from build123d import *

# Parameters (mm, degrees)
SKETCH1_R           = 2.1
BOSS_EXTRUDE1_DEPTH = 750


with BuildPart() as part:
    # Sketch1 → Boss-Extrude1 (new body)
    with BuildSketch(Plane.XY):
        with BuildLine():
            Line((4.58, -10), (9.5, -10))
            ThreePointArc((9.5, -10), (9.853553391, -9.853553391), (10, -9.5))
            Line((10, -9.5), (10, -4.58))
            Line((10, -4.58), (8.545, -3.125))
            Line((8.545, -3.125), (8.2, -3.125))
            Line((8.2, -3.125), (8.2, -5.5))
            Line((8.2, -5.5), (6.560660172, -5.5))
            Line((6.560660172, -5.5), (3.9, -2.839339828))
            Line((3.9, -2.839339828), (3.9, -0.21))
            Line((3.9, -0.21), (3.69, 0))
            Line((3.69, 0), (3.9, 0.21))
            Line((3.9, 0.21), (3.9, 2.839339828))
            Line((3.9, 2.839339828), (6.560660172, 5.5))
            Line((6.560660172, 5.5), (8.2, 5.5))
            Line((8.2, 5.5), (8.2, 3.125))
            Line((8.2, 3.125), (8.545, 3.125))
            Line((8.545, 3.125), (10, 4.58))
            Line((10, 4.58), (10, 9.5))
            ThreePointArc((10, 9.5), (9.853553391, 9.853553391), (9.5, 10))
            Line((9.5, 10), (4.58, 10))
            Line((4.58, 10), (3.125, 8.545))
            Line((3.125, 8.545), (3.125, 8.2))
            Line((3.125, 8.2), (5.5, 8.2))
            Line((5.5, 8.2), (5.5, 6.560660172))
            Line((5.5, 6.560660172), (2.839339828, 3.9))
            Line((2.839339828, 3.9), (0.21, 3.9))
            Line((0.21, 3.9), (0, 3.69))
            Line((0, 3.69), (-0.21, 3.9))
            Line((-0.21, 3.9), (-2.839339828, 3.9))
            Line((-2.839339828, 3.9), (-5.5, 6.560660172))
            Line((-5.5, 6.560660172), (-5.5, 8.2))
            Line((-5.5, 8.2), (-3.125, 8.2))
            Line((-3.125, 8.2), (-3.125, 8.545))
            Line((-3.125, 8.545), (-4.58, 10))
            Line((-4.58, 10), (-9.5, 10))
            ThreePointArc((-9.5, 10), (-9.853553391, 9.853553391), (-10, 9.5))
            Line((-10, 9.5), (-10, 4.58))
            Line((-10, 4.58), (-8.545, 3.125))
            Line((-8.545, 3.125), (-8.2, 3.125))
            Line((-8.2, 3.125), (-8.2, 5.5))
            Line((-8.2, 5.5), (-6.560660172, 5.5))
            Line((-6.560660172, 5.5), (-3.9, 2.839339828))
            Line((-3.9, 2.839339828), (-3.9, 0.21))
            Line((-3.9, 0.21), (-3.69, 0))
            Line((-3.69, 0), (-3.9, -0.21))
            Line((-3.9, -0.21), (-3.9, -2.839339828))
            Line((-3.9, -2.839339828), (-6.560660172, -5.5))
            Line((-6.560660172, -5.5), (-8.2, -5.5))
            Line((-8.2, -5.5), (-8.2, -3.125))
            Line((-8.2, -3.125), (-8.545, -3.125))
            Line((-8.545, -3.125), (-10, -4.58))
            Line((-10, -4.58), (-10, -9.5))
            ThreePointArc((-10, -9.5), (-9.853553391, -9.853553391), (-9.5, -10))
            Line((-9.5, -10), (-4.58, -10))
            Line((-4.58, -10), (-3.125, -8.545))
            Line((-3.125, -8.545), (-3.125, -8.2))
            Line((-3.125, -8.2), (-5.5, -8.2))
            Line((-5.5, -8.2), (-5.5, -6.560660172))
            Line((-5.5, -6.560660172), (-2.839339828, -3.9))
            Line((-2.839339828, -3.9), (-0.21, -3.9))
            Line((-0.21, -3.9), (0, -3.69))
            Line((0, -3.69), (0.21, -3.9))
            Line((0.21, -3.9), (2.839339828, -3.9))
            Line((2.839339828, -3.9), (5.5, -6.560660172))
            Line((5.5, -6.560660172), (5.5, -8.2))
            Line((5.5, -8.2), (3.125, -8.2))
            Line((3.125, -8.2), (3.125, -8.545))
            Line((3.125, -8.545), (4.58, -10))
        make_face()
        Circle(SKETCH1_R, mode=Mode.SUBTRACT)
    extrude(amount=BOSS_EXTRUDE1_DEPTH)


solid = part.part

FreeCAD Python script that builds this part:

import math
import FreeCAD as App
import Part
import Sketcher

doc = App.newDocument("Part")
body = doc.addObject("PartDesign::Body", "Body")

# Sketch on XY plane
sketch1 = doc.addObject("Sketcher::SketchObject", "Sketch")
body.addObject(sketch1)
sketch1.AttachmentSupport = (doc.XY_Plane, [""])
sketch1.MapMode = "FlatFace"
sketch1.addGeometry([
    Part.LineSegment(App.Vector(4.58, -10, 0), App.Vector(9.5, -10, 0)),  # 0
    Part.ArcOfCircle(Part.Circle(App.Vector(9.5, -9.5, 0), App.Vector(0, 0, 1), 0.5), math.radians(-90), math.radians(0)),  # 1
    Part.LineSegment(App.Vector(10, -9.5, 0), App.Vector(10, -4.58, 0)),  # 2
    Part.LineSegment(App.Vector(10, -4.58, 0), App.Vector(8.545, -3.125, 0)),  # 3
    Part.LineSegment(App.Vector(8.545, -3.125, 0), App.Vector(8.2, -3.125, 0)),  # 4
    Part.LineSegment(App.Vector(8.2, -3.125, 0), App.Vector(8.2, -5.5, 0)),  # 5
    Part.LineSegment(App.Vector(8.2, -5.5, 0), App.Vector(6.56066, -5.5, 0)),  # 6
    Part.LineSegment(App.Vector(6.56066, -5.5, 0), App.Vector(3.9, -2.83934, 0)),  # 7
    Part.LineSegment(App.Vector(3.9, -2.83934, 0), App.Vector(3.9, -0.21, 0)),  # 8
    Part.LineSegment(App.Vector(3.9, -0.21, 0), App.Vector(3.69, 0, 0)),  # 9
    Part.LineSegment(App.Vector(3.69, 0, 0), App.Vector(3.9, 0.21, 0)),  # 10
    Part.LineSegment(App.Vector(3.9, 0.21, 0), App.Vector(3.9, 2.83934, 0)),  # 11
    Part.LineSegment(App.Vector(3.9, 2.83934, 0), App.Vector(6.56066, 5.5, 0)),  # 12
    Part.LineSegment(App.Vector(6.56066, 5.5, 0), App.Vector(8.2, 5.5, 0)),  # 13
    Part.LineSegment(App.Vector(8.2, 5.5, 0), App.Vector(8.2, 3.125, 0)),  # 14
    Part.LineSegment(App.Vector(8.2, 3.125, 0), App.Vector(8.545, 3.125, 0)),  # 15
    Part.LineSegment(App.Vector(8.545, 3.125, 0), App.Vector(10, 4.58, 0)),  # 16
    Part.LineSegment(App.Vector(10, 4.58, 0), App.Vector(10, 9.5, 0)),  # 17
    Part.ArcOfCircle(Part.Circle(App.Vector(9.5, 9.5, 0), App.Vector(0, 0, 1), 0.5), math.radians(0), math.radians(90)),  # 18
    Part.LineSegment(App.Vector(9.5, 10, 0), App.Vector(4.58, 10, 0)),  # 19
    Part.LineSegment(App.Vector(4.58, 10, 0), App.Vector(3.125, 8.545, 0)),  # 20
    Part.LineSegment(App.Vector(3.125, 8.545, 0), App.Vector(3.125, 8.2, 0)),  # 21
    Part.LineSegment(App.Vector(3.125, 8.2, 0), App.Vector(5.5, 8.2, 0)),  # 22
    Part.LineSegment(App.Vector(5.5, 8.2, 0), App.Vector(5.5, 6.56066, 0)),  # 23
    Part.LineSegment(App.Vector(5.5, 6.56066, 0), App.Vector(2.83934, 3.9, 0)),  # 24
    Part.LineSegment(App.Vector(2.83934, 3.9, 0), App.Vector(0.21, 3.9, 0)),  # 25
    Part.LineSegment(App.Vector(0.21, 3.9, 0), App.Vector(0, 3.69, 0)),  # 26
    Part.LineSegment(App.Vector(0, 3.69, 0), App.Vector(-0.21, 3.9, 0)),  # 27
    Part.LineSegment(App.Vector(-0.21, 3.9, 0), App.Vector(-2.83934, 3.9, 0)),  # 28
    Part.LineSegment(App.Vector(-2.83934, 3.9, 0), App.Vector(-5.5, 6.56066, 0)),  # 29
    Part.LineSegment(App.Vector(-5.5, 6.56066, 0), App.Vector(-5.5, 8.2, 0)),  # 30
    Part.LineSegment(App.Vector(-5.5, 8.2, 0), App.Vector(-3.125, 8.2, 0)),  # 31
    Part.LineSegment(App.Vector(-3.125, 8.2, 0), App.Vector(-3.125, 8.545, 0)),  # 32
    Part.LineSegment(App.Vector(-3.125, 8.545, 0), App.Vector(-4.58, 10, 0)),  # 33
    Part.LineSegment(App.Vector(-4.58, 10, 0), App.Vector(-9.5, 10, 0)),  # 34
    Part.ArcOfCircle(Part.Circle(App.Vector(-9.5, 9.5, 0), App.Vector(0, 0, 1), 0.5), math.radians(90), math.radians(180)),  # 35
    Part.LineSegment(App.Vector(-10, 9.5, 0), App.Vector(-10, 4.58, 0)),  # 36
    Part.LineSegment(App.Vector(-10, 4.58, 0), App.Vector(-8.545, 3.125, 0)),  # 37
    Part.LineSegment(App.Vector(-8.545, 3.125, 0), App.Vector(-8.2, 3.125, 0)),  # 38
    Part.LineSegment(App.Vector(-8.2, 3.125, 0), App.Vector(-8.2, 5.5, 0)),  # 39
    Part.LineSegment(App.Vector(-8.2, 5.5, 0), App.Vector(-6.56066, 5.5, 0)),  # 40
    Part.LineSegment(App.Vector(-6.56066, 5.5, 0), App.Vector(-3.9, 2.83934, 0)),  # 41
    Part.LineSegment(App.Vector(-3.9, 2.83934, 0), App.Vector(-3.9, 0.21, 0)),  # 42
    Part.LineSegment(App.Vector(-3.9, 0.21, 0), App.Vector(-3.69, 0, 0)),  # 43
    Part.LineSegment(App.Vector(-3.69, 0, 0), App.Vector(-3.9, -0.21, 0)),  # 44
    Part.LineSegment(App.Vector(-3.9, -0.21, 0), App.Vector(-3.9, -2.83934, 0)),  # 45
    Part.LineSegment(App.Vector(-3.9, -2.83934, 0), App.Vector(-6.56066, -5.5, 0)),  # 46
    Part.LineSegment(App.Vector(-6.56066, -5.5, 0), App.Vector(-8.2, -5.5, 0)),  # 47
    Part.LineSegment(App.Vector(-8.2, -5.5, 0), App.Vector(-8.2, -3.125, 0)),  # 48
    Part.LineSegment(App.Vector(-8.2, -3.125, 0), App.Vector(-8.545, -3.125, 0)),  # 49
    Part.LineSegment(App.Vector(-8.545, -3.125, 0), App.Vector(-10, -4.58, 0)),  # 50
    Part.LineSegment(App.Vector(-10, -4.58, 0), App.Vector(-10, -9.5, 0)),  # 51
    Part.ArcOfCircle(Part.Circle(App.Vector(-9.5, -9.5, 0), App.Vector(0, 0, 1), 0.5), math.radians(180), math.radians(270)),  # 52
    Part.LineSegment(App.Vector(-9.5, -10, 0), App.Vector(-4.58, -10, 0)),  # 53
    Part.LineSegment(App.Vector(-4.58, -10, 0), App.Vector(-3.125, -8.545, 0)),  # 54
    Part.LineSegment(App.Vector(-3.125, -8.545, 0), App.Vector(-3.125, -8.2, 0)),  # 55
    Part.LineSegment(App.Vector(-3.125, -8.2, 0), App.Vector(-5.5, -8.2, 0)),  # 56
    Part.LineSegment(App.Vector(-5.5, -8.2, 0), App.Vector(-5.5, -6.56066, 0)),  # 57
    Part.LineSegment(App.Vector(-5.5, -6.56066, 0), App.Vector(-2.83934, -3.9, 0)),  # 58
    Part.LineSegment(App.Vector(-2.83934, -3.9, 0), App.Vector(-0.21, -3.9, 0)),  # 59
    Part.LineSegment(App.Vector(-0.21, -3.9, 0), App.Vector(0, -3.69, 0)),  # 60
    Part.LineSegment(App.Vector(0, -3.69, 0), App.Vector(0.21, -3.9, 0)),  # 61
    Part.LineSegment(App.Vector(0.21, -3.9, 0), App.Vector(2.83934, -3.9, 0)),  # 62
    Part.LineSegment(App.Vector(2.83934, -3.9, 0), App.Vector(5.5, -6.56066, 0)),  # 63
    Part.LineSegment(App.Vector(5.5, -6.56066, 0), App.Vector(5.5, -8.2, 0)),  # 64
    Part.LineSegment(App.Vector(5.5, -8.2, 0), App.Vector(3.125, -8.2, 0)),  # 65
    Part.LineSegment(App.Vector(3.125, -8.2, 0), App.Vector(3.125, -8.545, 0)),  # 66
    Part.LineSegment(App.Vector(3.125, -8.545, 0), App.Vector(4.58, -10, 0)),  # 67
    Part.Circle(App.Vector(0, 0, 0), App.Vector(0, 0, 1), 2.1),  # 68
], False)
sketch1.addConstraint([
    Sketcher.Constraint("Tangent", 0, 2, 1, 1),
    Sketcher.Constraint("Tangent", 1, 2, 2, 1),
    Sketcher.Constraint("Coincident", 2, 2, 3, 1),
    Sketcher.Constraint("Coincident", 3, 2, 4, 1),
    Sketcher.Constraint("Coincident", 4, 2, 5, 1),
    Sketcher.Constraint("Coincident", 5, 2, 6, 1),
    Sketcher.Constraint("Coincident", 6, 2, 7, 1),
    Sketcher.Constraint("Coincident", 7, 2, 8, 1),
    Sketcher.Constraint("Coincident", 8, 2, 9, 1),
    Sketcher.Constraint("Coincident", 9, 2, 10, 1),
    Sketcher.Constraint("Coincident", 10, 2, 11, 1),
    Sketcher.Constraint("Coincident", 11, 2, 12, 1),
    Sketcher.Constraint("Coincident", 12, 2, 13, 1),
    Sketcher.Constraint("Coincident", 13, 2, 14, 1),
    Sketcher.Constraint("Coincident", 14, 2, 15, 1),
    Sketcher.Constraint("Coincident", 15, 2, 16, 1),
    Sketcher.Constraint("Coincident", 16, 2, 17, 1),
    Sketcher.Constraint("Tangent", 17, 2, 18, 1),
    Sketcher.Constraint("Tangent", 18, 2, 19, 1),
    Sketcher.Constraint("Coincident", 19, 2, 20, 1),
    Sketcher.Constraint("Coincident", 20, 2, 21, 1),
    Sketcher.Constraint("Coincident", 21, 2, 22, 1),
    Sketcher.Constraint("Coincident", 22, 2, 23, 1),
    Sketcher.Constraint("Coincident", 23, 2, 24, 1),
    Sketcher.Constraint("Coincident", 24, 2, 25, 1),
    Sketcher.Constraint("Coincident", 25, 2, 26, 1),
    Sketcher.Constraint("Coincident", 26, 2, 27, 1),
    Sketcher.Constraint("Coincident", 27, 2, 28, 1),
    Sketcher.Constraint("Coincident", 28, 2, 29, 1),
    Sketcher.Constraint("Coincident", 29, 2, 30, 1),
    Sketcher.Constraint("Coincident", 30, 2, 31, 1),
    Sketcher.Constraint("Coincident", 31, 2, 32, 1),
    Sketcher.Constraint("Coincident", 32, 2, 33, 1),
    Sketcher.Constraint("Coincident", 33, 2, 34, 1),
    Sketcher.Constraint("Tangent", 34, 2, 35, 1),
    Sketcher.Constraint("Tangent", 35, 2, 36, 1),
    Sketcher.Constraint("Coincident", 36, 2, 37, 1),
    Sketcher.Constraint("Coincident", 37, 2, 38, 1),
    Sketcher.Constraint("Coincident", 38, 2, 39, 1),
    Sketcher.Constraint("Coincident", 39, 2, 40, 1),
    Sketcher.Constraint("Coincident", 40, 2, 41, 1),
    Sketcher.Constraint("Coincident", 41, 2, 42, 1),
    Sketcher.Constraint("Coincident", 42, 2, 43, 1),
    Sketcher.Constraint("Coincident", 43, 2, 44, 1),
    Sketcher.Constraint("Coincident", 44, 2, 45, 1),
    Sketcher.Constraint("Coincident", 45, 2, 46, 1),
    Sketcher.Constraint("Coincident", 46, 2, 47, 1),
    Sketcher.Constraint("Coincident", 47, 2, 48, 1),
    Sketcher.Constraint("Coincident", 48, 2, 49, 1),
    Sketcher.Constraint("Coincident", 49, 2, 50, 1),
    Sketcher.Constraint("Coincident", 50, 2, 51, 1),
    Sketcher.Constraint("Tangent", 51, 2, 52, 1),
    Sketcher.Constraint("Tangent", 52, 2, 53, 1),
    Sketcher.Constraint("Coincident", 53, 2, 54, 1),
    Sketcher.Constraint("Coincident", 54, 2, 55, 1),
    Sketcher.Constraint("Coincident", 55, 2, 56, 1),
    Sketcher.Constraint("Coincident", 56, 2, 57, 1),
    Sketcher.Constraint("Coincident", 57, 2, 58, 1),
    Sketcher.Constraint("Coincident", 58, 2, 59, 1),
    Sketcher.Constraint("Coincident", 59, 2, 60, 1),
    Sketcher.Constraint("Coincident", 60, 2, 61, 1),
    Sketcher.Constraint("Coincident", 61, 2, 62, 1),
    Sketcher.Constraint("Coincident", 62, 2, 63, 1),
    Sketcher.Constraint("Coincident", 63, 2, 64, 1),
    Sketcher.Constraint("Coincident", 64, 2, 65, 1),
    Sketcher.Constraint("Coincident", 65, 2, 66, 1),
    Sketcher.Constraint("Coincident", 66, 2, 67, 1),
    Sketcher.Constraint("Coincident", 67, 2, 0, 1),
    Sketcher.Constraint("Horizontal", 0),
    Sketcher.Constraint("Vertical", 2),
    Sketcher.Constraint("Horizontal", 4),
    Sketcher.Constraint("Vertical", 5),
    Sketcher.Constraint("Horizontal", 6),
    Sketcher.Constraint("Vertical", 8),
    Sketcher.Constraint("Vertical", 11),
    Sketcher.Constraint("Horizontal", 13),
    Sketcher.Constraint("Vertical", 14),
    Sketcher.Constraint("Horizontal", 15),
    Sketcher.Constraint("Vertical", 17),
    Sketcher.Constraint("Horizontal", 19),
    Sketcher.Constraint("Vertical", 21),
    Sketcher.Constraint("Horizontal", 22),
    Sketcher.Constraint("Vertical", 23),
    Sketcher.Constraint("Horizontal", 25),
    Sketcher.Constraint("Horizontal", 28),
    Sketcher.Constraint("Vertical", 30),
    Sketcher.Constraint("Horizontal", 31),
    Sketcher.Constraint("Vertical", 32),
    Sketcher.Constraint("Horizontal", 34),
    Sketcher.Constraint("Vertical", 36),
    Sketcher.Constraint("Horizontal", 38),
    Sketcher.Constraint("Vertical", 39),
    Sketcher.Constraint("Horizontal", 40),
    Sketcher.Constraint("Vertical", 42),
    Sketcher.Constraint("Vertical", 45),
    Sketcher.Constraint("Horizontal", 47),
    Sketcher.Constraint("Vertical", 48),
    Sketcher.Constraint("Horizontal", 49),
    Sketcher.Constraint("Vertical", 51),
    Sketcher.Constraint("Horizontal", 53),
    Sketcher.Constraint("Vertical", 55),
    Sketcher.Constraint("Horizontal", 56),
    Sketcher.Constraint("Vertical", 57),
    Sketcher.Constraint("Horizontal", 59),
    Sketcher.Constraint("Horizontal", 62),
    Sketcher.Constraint("Vertical", 64),
    Sketcher.Constraint("Horizontal", 65),
    Sketcher.Constraint("Vertical", 66),
    Sketcher.Constraint("Coincident", 68, 3, -1, 1),
    Sketcher.Constraint("Equal", 1, 18),
    Sketcher.Constraint("Equal", 18, 35),
    Sketcher.Constraint("Equal", 35, 52),
    Sketcher.Constraint("Symmetric", 1, 3, 35, 3, -1, 1),
    Sketcher.Constraint("Symmetric", 18, 3, 52, 3, -1, 1),
    Sketcher.Constraint("Symmetric", 3, 2, 37, 2, -1, 1),
    Sketcher.Constraint("Symmetric", 5, 2, 39, 2, -1, 1),
    Sketcher.Constraint("Symmetric", 7, 2, 41, 2, -1, 1),
    Sketcher.Constraint("Symmetric", 9, 2, 43, 2, -1, 1),
    Sketcher.Constraint("Symmetric", 10, 2, 44, 2, -1, 1),
    Sketcher.Constraint("Symmetric", 12, 2, 46, 2, -1, 1),
    Sketcher.Constraint("Symmetric", 14, 2, 48, 2, -1, 1),
    Sketcher.Constraint("Symmetric", 20, 2, 54, 2, -1, 1),
    Sketcher.Constraint("Symmetric", 22, 2, 56, 2, -1, 1),
    Sketcher.Constraint("Symmetric", 24, 2, 58, 2, -1, 1),
    Sketcher.Constraint("Symmetric", 26, 2, 60, 2, -1, 1),
    Sketcher.Constraint("Symmetric", 27, 2, 61, 2, -1, 1),
    Sketcher.Constraint("Symmetric", 29, 2, 63, 2, -1, 1),
    Sketcher.Constraint("Symmetric", 31, 2, 65, 2, -1, 1),
    Sketcher.Constraint("Symmetric", 18, 3, 35, 3, -2),
    Sketcher.Constraint("Symmetric", 25, 2, 27, 2, -2),
    Sketcher.Constraint("Symmetric", 23, 2, 29, 2, -2),
    Sketcher.Constraint("Symmetric", 21, 2, 31, 2, -2),
    Sketcher.Constraint("Symmetric", 15, 2, 37, 2, -2),
    Sketcher.Constraint("Symmetric", 13, 2, 39, 2, -2),
    Sketcher.Constraint("Symmetric", 11, 2, 41, 2, -2),
    Sketcher.Constraint("PointOnObject", 9, 2, -1),
    Sketcher.Constraint("PointOnObject", 26, 2, -2),
    Sketcher.Constraint("Parallel", 3, 7),
    Sketcher.Constraint("Parallel", 7, 9),
    Sketcher.Constraint("Perpendicular", 9, 10),
    Sketcher.Constraint("Parallel", 10, 12),
    Sketcher.Constraint("Parallel", 12, 16),
    Sketcher.Constraint("Parallel", 16, 20),
    Sketcher.Constraint("Parallel", 20, 24),
    Sketcher.Constraint("Parallel", 24, 26),
    Sketcher.Constraint("Perpendicular", 26, 27),
    Sketcher.Constraint("Parallel", 27, 29),
    Sketcher.Constraint("Parallel", 29, 33),
    Sketcher.Constraint("Parallel", 33, 37),
    Sketcher.Constraint("Parallel", 37, 41),
    Sketcher.Constraint("Parallel", 41, 43),
    Sketcher.Constraint("Parallel", 44, 46),
    Sketcher.Constraint("Parallel", 46, 50),
    Sketcher.Constraint("Parallel", 50, 54),
    Sketcher.Constraint("Parallel", 54, 58),
    Sketcher.Constraint("Parallel", 58, 60),
    Sketcher.Constraint("Parallel", 61, 63),
    Sketcher.Constraint("Parallel", 63, 67),
    Sketcher.Constraint("Horizontal", 20, 2, 32, 2),
    Sketcher.Constraint("Horizontal", 2, 2, 50, 2),
    Sketcher.Constraint("Horizontal", 54, 2, 66, 2),
    Sketcher.Constraint("Equal", 53, 2),
    Sketcher.Constraint("Equal", 65, 5),
    Sketcher.Constraint("Equal", 62, 8),
    Sketcher.Constraint("Equal", 49, 21),
    Sketcher.Constraint("Equal", 47, 23),
    Sketcher.Constraint("Equal", 16, 20),
    Sketcher.Constraint("Equal", 12, 24),
    Sketcher.Constraint("Equal", 10, 26),
    Sketcher.Constraint("Diameter", 68, 4.2),
    Sketcher.Constraint("Radius", 1, 0.5),
    Sketcher.Constraint("DistanceY", 0, 2, -1, 1, 10.0),
    Sketcher.Constraint("DistanceX", 0, 1, 0, 2, 4.92),
    Sketcher.Constraint("DistanceX", -1, 1, 4, 2, 8.2),
    Sketcher.Constraint("DistanceY", 5, 2, -1, 1, 5.5),
    Sketcher.Constraint("DistanceX", -1, 1, 7, 2, 3.9),
    Sketcher.Constraint("DistanceX", 4, 2, 4, 1, 0.345),
    Sketcher.Constraint("DistanceY", 8, 2, -1, 1, 0.21),
    Sketcher.Constraint("DistanceX", 6, 2, 6, 1, 1.63934),
])
pad1 = doc.addObject("PartDesign::Pad", "Pad")
body.addObject(pad1)
pad1.Profile = sketch1
pad1.Length = 750

doc.recompute()
